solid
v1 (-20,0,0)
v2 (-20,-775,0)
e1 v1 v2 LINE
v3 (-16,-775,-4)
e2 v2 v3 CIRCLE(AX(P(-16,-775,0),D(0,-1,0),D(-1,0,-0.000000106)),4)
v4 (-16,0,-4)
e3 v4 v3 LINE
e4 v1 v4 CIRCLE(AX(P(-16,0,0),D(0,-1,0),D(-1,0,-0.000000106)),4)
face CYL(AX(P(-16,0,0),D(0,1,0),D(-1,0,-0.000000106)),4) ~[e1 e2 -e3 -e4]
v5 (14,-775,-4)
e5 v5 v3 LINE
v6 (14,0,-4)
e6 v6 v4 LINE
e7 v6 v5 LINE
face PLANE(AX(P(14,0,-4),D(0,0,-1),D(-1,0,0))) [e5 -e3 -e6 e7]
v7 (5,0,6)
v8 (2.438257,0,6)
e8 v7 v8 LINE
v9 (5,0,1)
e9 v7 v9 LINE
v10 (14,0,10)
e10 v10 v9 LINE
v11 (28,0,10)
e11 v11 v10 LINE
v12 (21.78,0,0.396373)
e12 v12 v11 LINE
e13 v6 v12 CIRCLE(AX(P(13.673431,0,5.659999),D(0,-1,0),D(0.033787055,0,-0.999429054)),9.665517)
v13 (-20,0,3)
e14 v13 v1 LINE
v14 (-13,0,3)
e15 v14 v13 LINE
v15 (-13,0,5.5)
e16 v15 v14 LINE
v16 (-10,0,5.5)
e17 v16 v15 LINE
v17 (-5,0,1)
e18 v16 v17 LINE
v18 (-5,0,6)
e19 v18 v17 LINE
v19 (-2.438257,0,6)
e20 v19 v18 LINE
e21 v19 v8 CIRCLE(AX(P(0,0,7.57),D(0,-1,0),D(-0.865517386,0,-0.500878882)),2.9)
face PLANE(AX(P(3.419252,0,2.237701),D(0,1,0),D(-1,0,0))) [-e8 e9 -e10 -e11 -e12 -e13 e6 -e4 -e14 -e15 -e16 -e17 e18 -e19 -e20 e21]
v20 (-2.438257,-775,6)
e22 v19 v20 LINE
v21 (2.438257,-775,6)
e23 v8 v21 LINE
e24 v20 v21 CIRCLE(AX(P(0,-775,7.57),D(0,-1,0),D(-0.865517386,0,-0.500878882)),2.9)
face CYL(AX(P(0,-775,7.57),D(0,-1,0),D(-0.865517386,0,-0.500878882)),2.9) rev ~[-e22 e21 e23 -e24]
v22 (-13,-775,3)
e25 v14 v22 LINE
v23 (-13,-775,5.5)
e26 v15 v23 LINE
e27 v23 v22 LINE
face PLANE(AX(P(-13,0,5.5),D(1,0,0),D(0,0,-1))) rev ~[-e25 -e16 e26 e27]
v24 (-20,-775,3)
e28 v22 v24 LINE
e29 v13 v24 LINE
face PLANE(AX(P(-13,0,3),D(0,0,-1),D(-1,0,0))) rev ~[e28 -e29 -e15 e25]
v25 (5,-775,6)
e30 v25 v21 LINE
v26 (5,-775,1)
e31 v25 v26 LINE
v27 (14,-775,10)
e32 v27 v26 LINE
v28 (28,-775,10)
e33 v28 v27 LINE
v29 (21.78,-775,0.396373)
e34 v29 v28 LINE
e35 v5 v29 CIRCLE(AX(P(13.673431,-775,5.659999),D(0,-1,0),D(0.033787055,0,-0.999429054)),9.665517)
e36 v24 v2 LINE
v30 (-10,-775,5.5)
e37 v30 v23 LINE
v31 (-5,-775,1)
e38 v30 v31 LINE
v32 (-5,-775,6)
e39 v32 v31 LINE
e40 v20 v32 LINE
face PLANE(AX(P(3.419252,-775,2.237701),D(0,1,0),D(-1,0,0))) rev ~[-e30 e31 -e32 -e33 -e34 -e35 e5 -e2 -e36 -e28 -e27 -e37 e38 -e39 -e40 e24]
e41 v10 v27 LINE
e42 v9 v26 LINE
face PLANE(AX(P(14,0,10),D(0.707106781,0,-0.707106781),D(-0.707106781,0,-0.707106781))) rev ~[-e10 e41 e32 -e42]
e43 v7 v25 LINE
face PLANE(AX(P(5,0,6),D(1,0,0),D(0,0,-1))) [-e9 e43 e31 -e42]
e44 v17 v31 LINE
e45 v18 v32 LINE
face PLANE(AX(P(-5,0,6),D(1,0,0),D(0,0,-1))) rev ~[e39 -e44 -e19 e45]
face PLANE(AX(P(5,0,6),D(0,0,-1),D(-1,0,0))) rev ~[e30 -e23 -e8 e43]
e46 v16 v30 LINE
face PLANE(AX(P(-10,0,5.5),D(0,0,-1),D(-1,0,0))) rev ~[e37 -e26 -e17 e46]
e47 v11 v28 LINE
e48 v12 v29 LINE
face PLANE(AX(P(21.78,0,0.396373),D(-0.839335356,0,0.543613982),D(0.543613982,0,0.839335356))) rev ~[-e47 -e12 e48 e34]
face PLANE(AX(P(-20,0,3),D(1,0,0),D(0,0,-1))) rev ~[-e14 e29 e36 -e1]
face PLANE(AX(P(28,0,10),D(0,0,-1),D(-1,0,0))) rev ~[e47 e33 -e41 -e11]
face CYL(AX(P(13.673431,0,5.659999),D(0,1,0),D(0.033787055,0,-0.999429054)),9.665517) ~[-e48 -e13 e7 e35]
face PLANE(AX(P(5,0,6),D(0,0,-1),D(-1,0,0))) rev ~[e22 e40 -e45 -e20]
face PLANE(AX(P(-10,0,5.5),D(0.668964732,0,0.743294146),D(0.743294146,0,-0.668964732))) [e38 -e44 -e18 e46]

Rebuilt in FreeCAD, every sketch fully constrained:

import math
import FreeCAD as App
import Part
import Sketcher
Q = App.Units.Quantity

doc = App.newDocument("Part")
body = doc.addObject("PartDesign::Body", "Body")

sketch1 = body.newObject("Sketcher::SketchObject", "Sketch")
sketch1.AttachmentSupport = (doc.getObject("XZ_Plane"), [""])
sketch1.MapMode = "FlatFace"
sketch1.addGeometry([
    Part.LineSegment(App.Vector(-16, -4, 0), App.Vector(14, -4, 0)),
    Part.ArcOfCircle(Part.Circle(App.Vector(13.7, 5.7, 0), App.Vector(0, 0, 1), 9.7), math.radians(-88), math.radians(-33)),
    Part.LineSegment(App.Vector(21.8, 0.4, 0), App.Vector(28, 10, 0)),
    Part.LineSegment(App.Vector(28, 10, 0), App.Vector(14, 10, 0)),
    Part.LineSegment(App.Vector(14, 10, 0), App.Vector(5, 1, 0)),
    Part.LineSegment(App.Vector(5, 1, 0), App.Vector(5, 6, 0)),
    Part.LineSegment(App.Vector(5, 6, 0), App.Vector(-5, 6, 0)),
    Part.LineSegment(App.Vector(-5, 6, 0), App.Vector(-5, 1, 0)),
    Part.LineSegment(App.Vector(-5, 1, 0), App.Vector(-10, 5.5, 0)),
    Part.LineSegment(App.Vector(-10, 5.5, 0), App.Vector(-13, 5.5, 0)),
    Part.LineSegment(App.Vector(-13, 5.5, 0), App.Vector(-13, 3, 0)),
    Part.LineSegment(App.Vector(-13, 3, 0), App.Vector(-20, 3, 0)),
    Part.LineSegment(App.Vector(-20, 3, 0), App.Vector(-20, 0, 0)),
    Part.ArcOfCircle(Part.Circle(App.Vector(-16, 0, 0), App.Vector(0, 0, 1), 4), math.radians(-180), math.radians(-90)),
], False)
sketch1.addConstraint([
    Sketcher.Constraint("Coincident", 0, 2, 1, 1),
    Sketcher.Constraint("Coincident", 1, 2, 2, 1),
    Sketcher.Constraint("Coincident", 2, 2, 3, 1),
    Sketcher.Constraint("Coincident", 3, 2, 4, 1),
    Sketcher.Constraint("Coincident", 4, 2, 5, 1),
    Sketcher.Constraint("Coincident", 5, 2, 6, 1),
    Sketcher.Constraint("Coincident", 6, 2, 7, 1),
    Sketcher.Constraint("Coincident", 7, 2, 8, 1),
    Sketcher.Constraint("Coincident", 8, 2, 9, 1),
    Sketcher.Constraint("Coincident", 9, 2, 10, 1),
    Sketcher.Constraint("Coincident", 10, 2, 11, 1),
    Sketcher.Constraint("Coincident", 11, 2, 12, 1),
    Sketcher.Constraint("Tangent", 12, 2, 13, 1),
    Sketcher.Constraint("Tangent", 13, 2, 0, 1),
    Sketcher.Constraint("Horizontal", 0),
    Sketcher.Constraint("Horizontal", 3),
    Sketcher.Constraint("Vertical", 5),
    Sketcher.Constraint("Horizontal", 6),
    Sketcher.Constraint("Vertical", 7),
    Sketcher.Constraint("Horizontal", 9),
    Sketcher.Constraint("Vertical", 10),
    Sketcher.Constraint("Horizontal", 11),
    Sketcher.Constraint("Vertical", 12),
    Sketcher.Constraint("Symmetric", 4, 2, 7, 2, -2),
    Sketcher.Constraint("PointOnObject", 13, 3, -1),
    Sketcher.Constraint("Vertical", 0, 2, 3, 2),
    Sketcher.Constraint("Equal", 9, 12),
    Sketcher.Constraint("Radius", 13, 4.0),
    Sketcher.Constraint("DistanceX", 0, 1, 0, 2, 30.0),
    Sketcher.Constraint("DistanceX", 3, 2, 3, 1, 14.0),
    Sketcher.Constraint("DistanceX", 6, 2, 6, 1, 10.0),
    Sketcher.Constraint("DistanceX", 9, 2, 9, 1, 3.0),
    Sketcher.Constraint("DistanceX", 11, 2, 11, 1, 7.0),
    Sketcher.Constraint("DistanceY", 5, 1, 5, 2, 5.0),
    Sketcher.Constraint("Angle", 4, Q("-135 deg")),
    Sketcher.Constraint("DistanceY", 10, 2, 10, 1, 2.5),
    Sketcher.Constraint("DistanceX", 13, 3, -1, 1, 16.0),
    Sketcher.Constraint("DistanceY", -1, 1, 2, 2, 10.0),
    Sketcher.Constraint("Angle", 2, Q("57.070001 deg")),
    Sketcher.Constraint("DistanceY", -1, 1, 1, 3, 5.659999),
    Sketcher.Constraint("DistanceX", -1, 1, 1, 2, 21.78),
])
pad1 = body.newObject("PartDesign::Pad", "Pad")
pad1.Profile = sketch1
pad1.Length = 775

sketch2 = body.newObject("Sketcher::SketchObject", "Sketch001")
sketch2.AttachmentSupport = (doc.getObject("XZ_Plane"), [""])
sketch2.MapMode = "FlatFace"
sketch2.AttachmentOffset = App.Placement(App.Vector(0, 0, 775), App.Rotation())
sketch2.addGeometry([
    Part.ArcOfCircle(Part.Circle(App.Vector(0, 7.6, 0), App.Vector(0, 0, 1), 2.9), math.radians(-150), math.radians(-30)),
    Part.LineSegment(App.Vector(2.5, 6.1, 0), App.Vector(-2.5, 6.1, 0)),
], False)
sketch2.addConstraint([
    Sketcher.Constraint("Coincident", 0, 1, 1, 2),
    Sketcher.Constraint("Coincident", 1, 1, 0, 2),
    Sketcher.Constraint("Horizontal", 1),
    Sketcher.Constraint("PointOnObject", 0, 3, -2),
    Sketcher.Constraint("Radius", 0, 2.9),
    Sketcher.Constraint("DistanceX", 1, 2, 1, 1, 5.02),
    Sketcher.Constraint("DistanceY", -1, 1, 0, 3, 7.57),
])
pocket1 = body.newObject("PartDesign::Pocket", "Pocket")
pocket1.Profile = sketch2
pocket1.Length = 800

doc.recompute()
